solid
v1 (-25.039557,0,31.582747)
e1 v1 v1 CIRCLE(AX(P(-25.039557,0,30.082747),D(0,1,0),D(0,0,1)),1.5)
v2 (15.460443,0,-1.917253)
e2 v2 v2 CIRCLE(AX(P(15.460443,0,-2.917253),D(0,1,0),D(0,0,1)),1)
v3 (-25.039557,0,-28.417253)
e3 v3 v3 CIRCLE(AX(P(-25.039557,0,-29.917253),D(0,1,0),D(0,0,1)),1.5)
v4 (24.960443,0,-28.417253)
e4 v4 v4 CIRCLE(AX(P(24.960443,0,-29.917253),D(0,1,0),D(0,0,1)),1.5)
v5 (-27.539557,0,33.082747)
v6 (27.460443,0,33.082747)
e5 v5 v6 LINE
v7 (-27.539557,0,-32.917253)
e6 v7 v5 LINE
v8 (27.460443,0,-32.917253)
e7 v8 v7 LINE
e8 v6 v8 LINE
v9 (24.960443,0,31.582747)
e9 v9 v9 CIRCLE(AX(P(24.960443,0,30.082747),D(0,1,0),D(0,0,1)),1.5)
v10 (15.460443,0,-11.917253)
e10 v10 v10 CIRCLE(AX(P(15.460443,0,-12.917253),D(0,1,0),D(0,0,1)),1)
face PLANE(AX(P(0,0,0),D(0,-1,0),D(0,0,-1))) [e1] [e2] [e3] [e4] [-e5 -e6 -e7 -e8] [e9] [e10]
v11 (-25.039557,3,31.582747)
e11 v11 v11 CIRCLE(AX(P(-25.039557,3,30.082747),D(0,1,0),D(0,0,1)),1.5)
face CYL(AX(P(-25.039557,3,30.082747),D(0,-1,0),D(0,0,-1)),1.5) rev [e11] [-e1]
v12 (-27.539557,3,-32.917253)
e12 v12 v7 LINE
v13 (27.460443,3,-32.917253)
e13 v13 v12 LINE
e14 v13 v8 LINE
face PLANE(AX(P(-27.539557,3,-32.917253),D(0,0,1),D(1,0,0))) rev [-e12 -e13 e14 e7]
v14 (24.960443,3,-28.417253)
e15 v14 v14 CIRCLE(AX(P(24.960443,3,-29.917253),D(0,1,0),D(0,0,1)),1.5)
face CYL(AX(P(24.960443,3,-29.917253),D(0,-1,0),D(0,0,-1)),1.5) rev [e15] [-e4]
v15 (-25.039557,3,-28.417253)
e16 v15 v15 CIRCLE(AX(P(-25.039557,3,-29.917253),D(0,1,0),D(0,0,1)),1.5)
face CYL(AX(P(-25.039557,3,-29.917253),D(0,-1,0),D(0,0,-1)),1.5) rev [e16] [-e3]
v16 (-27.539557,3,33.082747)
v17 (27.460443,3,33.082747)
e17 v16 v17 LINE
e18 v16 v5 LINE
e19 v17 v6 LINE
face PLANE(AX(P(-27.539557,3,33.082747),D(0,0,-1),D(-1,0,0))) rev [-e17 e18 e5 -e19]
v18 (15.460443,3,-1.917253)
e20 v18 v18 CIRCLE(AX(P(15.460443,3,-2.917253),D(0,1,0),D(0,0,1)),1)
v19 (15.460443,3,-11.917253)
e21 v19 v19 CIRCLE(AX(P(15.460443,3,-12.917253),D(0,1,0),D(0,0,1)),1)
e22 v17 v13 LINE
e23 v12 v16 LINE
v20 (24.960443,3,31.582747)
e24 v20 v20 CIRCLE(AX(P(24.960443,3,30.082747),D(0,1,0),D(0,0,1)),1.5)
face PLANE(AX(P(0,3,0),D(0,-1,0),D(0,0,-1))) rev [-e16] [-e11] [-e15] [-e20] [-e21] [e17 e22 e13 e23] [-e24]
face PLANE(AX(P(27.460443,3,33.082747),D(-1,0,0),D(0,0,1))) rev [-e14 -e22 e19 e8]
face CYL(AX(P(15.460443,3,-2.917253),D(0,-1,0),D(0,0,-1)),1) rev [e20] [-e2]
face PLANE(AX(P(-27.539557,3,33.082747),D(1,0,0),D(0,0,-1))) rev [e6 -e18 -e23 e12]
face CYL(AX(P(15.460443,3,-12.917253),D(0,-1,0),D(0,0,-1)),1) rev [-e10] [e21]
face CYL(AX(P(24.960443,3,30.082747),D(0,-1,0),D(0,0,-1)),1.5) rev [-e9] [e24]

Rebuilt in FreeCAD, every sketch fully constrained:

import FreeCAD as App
import Part
import Sketcher
from FreeCAD import Vector


def add_polygon(sketch, points):
    """Adds a closed chain of lines whose ends are joined by coincident constraints."""
    first, n = sketch.GeometryCount, len(points)
    for a, b in zip(points, points[1:] + points[:1]):
        sketch.addGeometry(Part.LineSegment(App.Vector(*a, 0), App.Vector(*b, 0)), False)
    for i in range(n):
        sketch.addConstraint(Sketcher.Constraint("Coincident", first + i, 2, first + (i + 1) % n, 1))

doc = App.newDocument("Part")
body = doc.addObject("PartDesign::Body", "Body")

# Sketch on XZ plane
sketch1 = body.newObject("Sketcher::SketchObject", "Sketch")
sketch1.AttachmentSupport = (doc.getObject("XZ_Plane"), [""])
sketch1.MapMode = "FlatFace"
add_polygon(sketch1, [(-27.5, -32.9), (-27.5, 33.1), (27.5, 33.1), (27.5, -32.9)])  # lines 0-3
sketch1.addGeometry(Part.Circle(Vector(-25, 30.1, 0), Vector(0, 0, 1), 1.5), False)  # 4
sketch1.addGeometry(Part.Circle(Vector(25, 30.1, 0), Vector(0, 0, 1), 1.5), False)  # 5
sketch1.addGeometry(Part.Circle(Vector(-25, -29.9, 0), Vector(0, 0, 1), 1.5), False)  # 6
sketch1.addGeometry(Part.Circle(Vector(15.5, -2.9, 0), Vector(0, 0, 1), 1), False)  # 7
sketch1.addGeometry(Part.Circle(Vector(15.5, -12.9, 0), Vector(0, 0, 1), 1), False)  # 8
sketch1.addGeometry(Part.Circle(Vector(25, -29.9, 0), Vector(0, 0, 1), 1.5), False)  # 9
sketch1.addConstraint([
    Sketcher.Constraint("Vertical", 0),
    Sketcher.Constraint("Horizontal", 1),
    Sketcher.Constraint("Vertical", 2),
    Sketcher.Constraint("Horizontal", 3),
    Sketcher.Constraint("Equal", 4, 5),
    Sketcher.Constraint("Equal", 5, 6),
    Sketcher.Constraint("Equal", 7, 8),
    Sketcher.Constraint("Equal", 6, 9),
    Sketcher.Constraint("Horizontal", 4, 3, 5, 3),
    Sketcher.Constraint("Horizontal", 6, 3, 9, 3),
    Sketcher.Constraint("Vertical", 4, 3, 6, 3),
    Sketcher.Constraint("Vertical", 7, 3, 8, 3),
    Sketcher.Constraint("Vertical", 5, 3, 9, 3),
    Sketcher.Constraint("Diameter", 4, 3.0),
    Sketcher.Constraint("Diameter", 7, 2.0),
    Sketcher.Constraint("DistanceX", 1, 1, 1, 2, 55.0),
    Sketcher.Constraint("DistanceY", 0, 1, 0, 2, 66.0),
    Sketcher.Constraint("DistanceX", 4, 3, 5, 3, 50.0),
    Sketcher.Constraint("DistanceY", 6, 3, 4, 3, 60.0),
    Sketcher.Constraint("DistanceY", 7, 3, 5, 3, 33.0),
    Sketcher.Constraint("DistanceY", 8, 3, 7, 3, 10.0),
    Sketcher.Constraint("DistanceY", 4, 3, 0, 2, 3.0),
    Sketcher.Constraint("DistanceX", 0, 2, 7, 3, 43.0),
    Sketcher.Constraint("DistanceX", 7, 3, 5, 3, 9.5),
    Sketcher.Constraint("DistanceX", 4, 3, -1, 1, 25.039557),
    Sketcher.Constraint("DistanceY", -1, 1, 4, 3, 30.082747),
])
pad1 = body.newObject("PartDesign::Pad", "Pad")
pad1.Profile = sketch1
pad1.Length = 3
pad1.Reversed = True

doc.recompute()
